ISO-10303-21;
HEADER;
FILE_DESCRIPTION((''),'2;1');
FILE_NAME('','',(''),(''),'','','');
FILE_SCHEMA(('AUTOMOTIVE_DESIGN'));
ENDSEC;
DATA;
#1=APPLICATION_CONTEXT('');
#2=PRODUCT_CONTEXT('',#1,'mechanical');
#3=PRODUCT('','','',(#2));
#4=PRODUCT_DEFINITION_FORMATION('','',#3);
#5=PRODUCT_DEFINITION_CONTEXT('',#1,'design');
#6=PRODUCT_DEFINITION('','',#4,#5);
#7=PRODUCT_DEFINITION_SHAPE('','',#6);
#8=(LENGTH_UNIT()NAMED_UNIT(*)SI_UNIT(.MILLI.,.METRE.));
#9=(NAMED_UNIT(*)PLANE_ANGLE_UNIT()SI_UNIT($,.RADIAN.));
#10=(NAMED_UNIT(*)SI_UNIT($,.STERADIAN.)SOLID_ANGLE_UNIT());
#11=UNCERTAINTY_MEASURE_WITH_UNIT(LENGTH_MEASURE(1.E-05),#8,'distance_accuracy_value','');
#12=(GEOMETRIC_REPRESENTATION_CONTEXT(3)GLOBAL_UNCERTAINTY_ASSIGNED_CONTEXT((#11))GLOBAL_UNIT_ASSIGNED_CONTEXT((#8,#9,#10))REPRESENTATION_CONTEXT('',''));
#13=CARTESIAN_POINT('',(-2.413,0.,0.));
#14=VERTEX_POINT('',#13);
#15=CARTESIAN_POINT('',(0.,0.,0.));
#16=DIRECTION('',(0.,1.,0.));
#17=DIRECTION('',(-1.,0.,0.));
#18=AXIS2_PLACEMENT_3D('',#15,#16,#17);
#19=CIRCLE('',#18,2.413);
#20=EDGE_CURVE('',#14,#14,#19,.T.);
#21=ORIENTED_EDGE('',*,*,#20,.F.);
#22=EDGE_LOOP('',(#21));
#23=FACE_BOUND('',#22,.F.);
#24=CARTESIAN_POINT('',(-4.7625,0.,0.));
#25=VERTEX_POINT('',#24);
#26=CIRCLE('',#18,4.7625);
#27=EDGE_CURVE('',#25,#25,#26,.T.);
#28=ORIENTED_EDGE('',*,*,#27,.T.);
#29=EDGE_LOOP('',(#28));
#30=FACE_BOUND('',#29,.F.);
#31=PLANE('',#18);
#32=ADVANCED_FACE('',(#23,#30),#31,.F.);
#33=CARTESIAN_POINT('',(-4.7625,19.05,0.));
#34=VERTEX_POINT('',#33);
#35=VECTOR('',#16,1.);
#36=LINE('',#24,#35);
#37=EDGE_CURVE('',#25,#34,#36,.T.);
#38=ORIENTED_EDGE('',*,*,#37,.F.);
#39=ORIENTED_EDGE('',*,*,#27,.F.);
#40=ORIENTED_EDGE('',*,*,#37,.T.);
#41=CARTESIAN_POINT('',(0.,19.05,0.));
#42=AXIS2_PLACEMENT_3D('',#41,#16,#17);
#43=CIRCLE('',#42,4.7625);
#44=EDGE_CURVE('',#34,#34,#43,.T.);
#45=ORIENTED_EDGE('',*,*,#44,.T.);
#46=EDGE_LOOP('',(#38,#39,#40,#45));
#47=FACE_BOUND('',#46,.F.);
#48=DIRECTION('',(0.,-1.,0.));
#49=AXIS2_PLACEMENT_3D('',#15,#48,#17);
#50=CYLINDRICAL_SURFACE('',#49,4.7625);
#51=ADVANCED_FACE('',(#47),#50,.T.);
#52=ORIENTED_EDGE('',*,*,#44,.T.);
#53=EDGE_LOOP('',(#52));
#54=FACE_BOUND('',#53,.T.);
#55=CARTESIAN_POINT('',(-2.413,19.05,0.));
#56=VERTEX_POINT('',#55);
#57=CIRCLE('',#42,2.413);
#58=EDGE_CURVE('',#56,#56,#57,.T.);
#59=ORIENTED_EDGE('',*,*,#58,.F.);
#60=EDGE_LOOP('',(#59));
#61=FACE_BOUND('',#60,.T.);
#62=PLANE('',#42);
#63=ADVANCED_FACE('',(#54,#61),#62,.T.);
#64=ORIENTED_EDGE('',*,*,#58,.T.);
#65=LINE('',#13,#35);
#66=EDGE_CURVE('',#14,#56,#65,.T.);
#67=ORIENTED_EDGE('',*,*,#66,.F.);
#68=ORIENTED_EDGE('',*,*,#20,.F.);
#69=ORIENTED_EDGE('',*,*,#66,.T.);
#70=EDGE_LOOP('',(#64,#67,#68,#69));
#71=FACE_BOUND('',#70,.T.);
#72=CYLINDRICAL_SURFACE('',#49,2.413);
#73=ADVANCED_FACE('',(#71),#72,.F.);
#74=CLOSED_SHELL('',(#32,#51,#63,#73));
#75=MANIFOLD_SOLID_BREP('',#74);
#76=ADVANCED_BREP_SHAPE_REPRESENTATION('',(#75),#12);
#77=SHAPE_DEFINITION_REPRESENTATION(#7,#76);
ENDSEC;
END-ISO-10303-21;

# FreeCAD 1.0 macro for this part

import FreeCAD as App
import Part
import Sketcher
Q = App.Units.Quantity

doc = App.newDocument("Part")
body = doc.addObject("PartDesign::Body", "Body")

sketch1 = body.newObject("Sketcher::SketchObject", "Sketch")
sketch1.AttachmentSupport = (doc.getObject("XZ_Plane"), [""])
sketch1.MapMode = "FlatFace"
sketch1.addGeometry([
    Part.Circle(App.Vector(0, 0, 0), App.Vector(0, 0, 1), 4.7625),
    Part.Circle(App.Vector(0, 0, 0), App.Vector(0, 0, 1), 2.413),
], False)
sketch1.addConstraint([
    Sketcher.Constraint("Coincident", 0, 3, -1, 1),
    Sketcher.Constraint("Coincident", 1, 3, -1, 1),
    Sketcher.Constraint("Diameter", 1, Q("0.19 in")),
    Sketcher.Constraint("Diameter", 0, Q("0.375 in")),
])
pad1 = body.newObject("PartDesign::Pad", "Pad")
pad1.Profile = sketch1
pad1.Length = Q("0.75 in")
pad1.Reversed = True

doc.recompute()
